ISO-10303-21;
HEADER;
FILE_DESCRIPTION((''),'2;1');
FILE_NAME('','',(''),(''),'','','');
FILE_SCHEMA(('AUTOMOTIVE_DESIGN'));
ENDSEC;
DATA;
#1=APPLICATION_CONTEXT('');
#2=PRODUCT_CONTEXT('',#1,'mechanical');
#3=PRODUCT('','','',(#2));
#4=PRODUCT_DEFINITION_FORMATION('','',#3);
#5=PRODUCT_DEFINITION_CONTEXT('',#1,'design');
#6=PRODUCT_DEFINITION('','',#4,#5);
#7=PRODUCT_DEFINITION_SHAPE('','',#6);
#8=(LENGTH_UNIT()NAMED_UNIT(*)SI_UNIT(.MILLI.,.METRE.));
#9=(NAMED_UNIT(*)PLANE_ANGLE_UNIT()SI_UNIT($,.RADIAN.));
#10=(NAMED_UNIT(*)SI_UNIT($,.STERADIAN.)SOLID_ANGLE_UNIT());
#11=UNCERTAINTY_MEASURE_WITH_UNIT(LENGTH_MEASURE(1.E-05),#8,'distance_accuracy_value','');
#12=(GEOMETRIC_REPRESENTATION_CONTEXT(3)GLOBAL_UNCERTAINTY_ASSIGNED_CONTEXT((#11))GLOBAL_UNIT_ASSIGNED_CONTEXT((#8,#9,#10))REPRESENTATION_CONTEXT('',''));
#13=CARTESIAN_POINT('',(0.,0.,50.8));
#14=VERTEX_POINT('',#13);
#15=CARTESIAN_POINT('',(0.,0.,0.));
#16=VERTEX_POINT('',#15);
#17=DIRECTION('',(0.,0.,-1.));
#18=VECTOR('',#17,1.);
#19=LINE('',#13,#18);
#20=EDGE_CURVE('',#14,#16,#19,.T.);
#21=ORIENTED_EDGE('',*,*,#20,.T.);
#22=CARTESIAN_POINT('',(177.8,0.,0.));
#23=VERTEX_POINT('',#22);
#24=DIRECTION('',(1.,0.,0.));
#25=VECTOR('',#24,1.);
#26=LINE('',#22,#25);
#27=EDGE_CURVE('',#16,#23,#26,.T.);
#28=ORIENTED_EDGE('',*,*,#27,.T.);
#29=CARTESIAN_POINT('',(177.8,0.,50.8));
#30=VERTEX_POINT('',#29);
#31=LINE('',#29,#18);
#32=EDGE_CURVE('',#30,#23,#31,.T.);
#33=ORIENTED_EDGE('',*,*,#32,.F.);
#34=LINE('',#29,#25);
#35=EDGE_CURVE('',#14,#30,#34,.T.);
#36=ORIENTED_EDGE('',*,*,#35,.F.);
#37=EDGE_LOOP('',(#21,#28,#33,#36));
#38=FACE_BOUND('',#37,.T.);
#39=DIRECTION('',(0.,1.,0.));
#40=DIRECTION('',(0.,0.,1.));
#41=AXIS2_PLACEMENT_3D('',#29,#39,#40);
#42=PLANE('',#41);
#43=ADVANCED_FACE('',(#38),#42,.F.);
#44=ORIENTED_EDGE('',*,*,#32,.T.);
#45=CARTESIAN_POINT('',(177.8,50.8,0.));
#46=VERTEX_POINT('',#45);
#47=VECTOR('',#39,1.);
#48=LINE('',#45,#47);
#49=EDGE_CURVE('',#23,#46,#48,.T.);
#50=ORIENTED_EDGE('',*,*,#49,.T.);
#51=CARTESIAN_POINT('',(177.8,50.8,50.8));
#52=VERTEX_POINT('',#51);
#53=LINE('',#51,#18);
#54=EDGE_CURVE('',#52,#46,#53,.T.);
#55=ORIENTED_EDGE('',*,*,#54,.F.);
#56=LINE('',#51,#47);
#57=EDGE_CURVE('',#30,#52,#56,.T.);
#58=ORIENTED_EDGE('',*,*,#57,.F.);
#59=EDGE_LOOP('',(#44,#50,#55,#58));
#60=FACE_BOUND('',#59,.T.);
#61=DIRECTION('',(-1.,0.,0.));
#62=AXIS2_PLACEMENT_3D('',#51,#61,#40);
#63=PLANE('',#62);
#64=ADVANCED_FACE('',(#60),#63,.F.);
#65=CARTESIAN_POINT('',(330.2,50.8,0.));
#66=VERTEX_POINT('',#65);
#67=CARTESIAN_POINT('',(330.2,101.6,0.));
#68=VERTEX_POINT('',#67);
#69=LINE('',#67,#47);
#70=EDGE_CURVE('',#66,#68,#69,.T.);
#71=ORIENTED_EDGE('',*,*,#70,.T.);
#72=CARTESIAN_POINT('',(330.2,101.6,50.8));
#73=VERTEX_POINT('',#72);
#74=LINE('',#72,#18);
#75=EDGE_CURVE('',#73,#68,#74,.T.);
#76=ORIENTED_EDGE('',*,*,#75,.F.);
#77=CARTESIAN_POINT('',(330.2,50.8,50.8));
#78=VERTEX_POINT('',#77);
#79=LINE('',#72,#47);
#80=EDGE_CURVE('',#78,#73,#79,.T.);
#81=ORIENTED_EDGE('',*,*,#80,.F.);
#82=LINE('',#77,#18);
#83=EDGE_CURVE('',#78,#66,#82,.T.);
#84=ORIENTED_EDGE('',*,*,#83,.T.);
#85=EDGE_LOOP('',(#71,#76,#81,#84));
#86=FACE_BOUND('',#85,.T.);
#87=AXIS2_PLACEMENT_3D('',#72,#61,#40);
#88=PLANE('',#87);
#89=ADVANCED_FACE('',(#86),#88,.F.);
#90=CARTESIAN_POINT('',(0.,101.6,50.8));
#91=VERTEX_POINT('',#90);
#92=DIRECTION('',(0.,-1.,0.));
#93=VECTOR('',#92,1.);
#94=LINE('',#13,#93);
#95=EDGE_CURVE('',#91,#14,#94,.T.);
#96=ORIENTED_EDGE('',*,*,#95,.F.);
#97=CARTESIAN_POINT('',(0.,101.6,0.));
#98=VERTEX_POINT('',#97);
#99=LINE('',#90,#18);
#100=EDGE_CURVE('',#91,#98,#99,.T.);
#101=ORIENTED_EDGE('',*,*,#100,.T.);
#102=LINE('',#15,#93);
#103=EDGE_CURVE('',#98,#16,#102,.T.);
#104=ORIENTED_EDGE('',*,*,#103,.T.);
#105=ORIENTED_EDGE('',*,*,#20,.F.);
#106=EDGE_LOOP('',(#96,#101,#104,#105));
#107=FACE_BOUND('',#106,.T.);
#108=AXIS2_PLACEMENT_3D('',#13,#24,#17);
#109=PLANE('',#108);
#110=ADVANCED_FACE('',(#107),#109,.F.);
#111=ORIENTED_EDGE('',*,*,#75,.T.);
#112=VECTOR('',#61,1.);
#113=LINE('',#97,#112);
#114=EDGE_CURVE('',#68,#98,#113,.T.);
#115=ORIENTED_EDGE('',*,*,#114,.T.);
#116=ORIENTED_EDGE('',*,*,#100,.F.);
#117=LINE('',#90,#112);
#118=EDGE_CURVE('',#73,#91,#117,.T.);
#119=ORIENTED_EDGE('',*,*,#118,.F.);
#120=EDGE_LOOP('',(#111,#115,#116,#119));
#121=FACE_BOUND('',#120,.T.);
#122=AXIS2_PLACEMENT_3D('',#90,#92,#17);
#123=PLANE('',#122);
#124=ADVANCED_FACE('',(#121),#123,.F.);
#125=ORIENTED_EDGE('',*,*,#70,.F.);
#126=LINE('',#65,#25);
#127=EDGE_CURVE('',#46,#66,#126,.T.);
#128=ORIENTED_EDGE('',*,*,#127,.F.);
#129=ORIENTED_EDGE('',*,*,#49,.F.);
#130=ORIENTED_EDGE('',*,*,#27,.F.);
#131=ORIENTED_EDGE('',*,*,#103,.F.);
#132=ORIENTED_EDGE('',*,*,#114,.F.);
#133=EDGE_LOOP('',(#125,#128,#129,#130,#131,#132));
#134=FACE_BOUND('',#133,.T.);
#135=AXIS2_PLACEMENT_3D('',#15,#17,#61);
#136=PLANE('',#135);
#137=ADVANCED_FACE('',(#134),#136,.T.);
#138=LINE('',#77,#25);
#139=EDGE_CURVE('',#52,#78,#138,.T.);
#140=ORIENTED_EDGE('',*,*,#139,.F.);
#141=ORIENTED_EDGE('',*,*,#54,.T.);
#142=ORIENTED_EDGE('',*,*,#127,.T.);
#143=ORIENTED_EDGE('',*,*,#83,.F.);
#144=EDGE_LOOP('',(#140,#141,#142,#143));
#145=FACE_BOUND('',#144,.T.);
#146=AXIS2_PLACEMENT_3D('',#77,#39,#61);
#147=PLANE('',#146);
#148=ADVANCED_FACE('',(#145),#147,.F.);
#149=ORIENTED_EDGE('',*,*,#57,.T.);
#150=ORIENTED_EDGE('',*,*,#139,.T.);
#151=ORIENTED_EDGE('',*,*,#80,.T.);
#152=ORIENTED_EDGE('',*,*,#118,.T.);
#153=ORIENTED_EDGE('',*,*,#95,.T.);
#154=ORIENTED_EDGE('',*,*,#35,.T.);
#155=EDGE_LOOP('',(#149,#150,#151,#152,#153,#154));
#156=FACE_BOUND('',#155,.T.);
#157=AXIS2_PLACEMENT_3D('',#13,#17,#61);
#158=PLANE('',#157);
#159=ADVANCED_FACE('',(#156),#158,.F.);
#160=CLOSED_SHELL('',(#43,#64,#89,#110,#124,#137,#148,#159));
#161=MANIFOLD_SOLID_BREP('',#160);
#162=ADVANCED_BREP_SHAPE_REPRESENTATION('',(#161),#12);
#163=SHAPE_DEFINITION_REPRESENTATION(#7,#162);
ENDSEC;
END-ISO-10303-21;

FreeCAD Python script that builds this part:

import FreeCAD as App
import Part
import Sketcher

V = App.Vector
Q = App.Units.Quantity

doc = App.newDocument("Part")
body = doc.addObject("PartDesign::Body", "Body")

sketch1 = body.newObject("Sketcher::SketchObject", "Sketch")
sketch1.AttachmentSupport = (doc.getObject("XY_Plane"), [""])
sketch1.MapMode = "FlatFace"
sketch1.addGeometry([
    Part.LineSegment(V(0, 101.6, 0), V(0, 0, 0)),
    Part.LineSegment(V(0, 0, 0), V(177.8, 0, 0)),
    Part.LineSegment(V(177.8, 0, 0), V(177.8, 50.8, 0)),
    Part.LineSegment(V(177.8, 50.8, 0), V(330.2, 50.8, 0)),
    Part.LineSegment(V(330.2, 50.8, 0), V(330.2, 101.6, 0)),
    Part.LineSegment(V(330.2, 101.6, 0), V(0, 101.6, 0)),
], False)
sketch1.addConstraint([
    Sketcher.Constraint("Coincident", 0, 2, 1, 1),
    Sketcher.Constraint("Coincident", 1, 2, 2, 1),
    Sketcher.Constraint("Coincident", 2, 2, 3, 1),
    Sketcher.Constraint("Coincident", 3, 2, 4, 1),
    Sketcher.Constraint("Coincident", 4, 2, 5, 1),
    Sketcher.Constraint("Coincident", 5, 2, 0, 1),
    Sketcher.Constraint("Vertical", 0),
    Sketcher.Constraint("Horizontal", 1),
    Sketcher.Constraint("Vertical", 2),
    Sketcher.Constraint("Horizontal", 3),
    Sketcher.Constraint("Vertical", 4),
    Sketcher.Constraint("Horizontal", 5),
    Sketcher.Constraint("Coincident", 0, 2, -1, 1),
    Sketcher.Constraint("Equal", 2, 4),
    Sketcher.Constraint("DistanceX", 1, 1, 1, 2, Q("7 in")),
    Sketcher.Constraint("DistanceX", 3, 1, 3, 2, Q("6 in")),
    Sketcher.Constraint("DistanceY", 0, 2, 0, 1, Q("4 in")),
])
pad1 = body.newObject("PartDesign::Pad", "Pad")
pad1.Profile = sketch1
pad1.Length = Q("2 in")

doc.recompute()
